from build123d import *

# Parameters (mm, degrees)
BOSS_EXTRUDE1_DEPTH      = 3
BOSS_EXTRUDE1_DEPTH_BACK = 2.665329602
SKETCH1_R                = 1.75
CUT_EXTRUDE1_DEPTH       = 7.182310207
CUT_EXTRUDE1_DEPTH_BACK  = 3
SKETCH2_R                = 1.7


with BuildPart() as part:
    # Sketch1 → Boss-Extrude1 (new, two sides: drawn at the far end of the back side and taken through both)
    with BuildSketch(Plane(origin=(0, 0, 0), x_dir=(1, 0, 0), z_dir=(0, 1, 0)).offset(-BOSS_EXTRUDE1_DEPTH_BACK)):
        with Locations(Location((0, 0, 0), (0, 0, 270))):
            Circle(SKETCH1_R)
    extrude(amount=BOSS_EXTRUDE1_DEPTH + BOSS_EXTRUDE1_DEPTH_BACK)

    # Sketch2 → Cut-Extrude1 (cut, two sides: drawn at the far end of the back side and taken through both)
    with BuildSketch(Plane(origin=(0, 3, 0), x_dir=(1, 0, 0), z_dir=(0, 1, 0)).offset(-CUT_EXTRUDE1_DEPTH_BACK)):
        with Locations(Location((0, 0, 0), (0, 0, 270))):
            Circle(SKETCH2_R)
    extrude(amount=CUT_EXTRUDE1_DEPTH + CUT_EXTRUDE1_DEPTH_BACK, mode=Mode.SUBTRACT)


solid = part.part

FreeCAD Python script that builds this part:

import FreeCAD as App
import Part
import Sketcher
from FreeCAD import Vector
Q = App.Units.Quantity

doc = App.newDocument("Part")
body = doc.addObject("PartDesign::Body", "Body")

# Sketch on XZ plane
sketch1 = doc.addObject("Sketcher::SketchObject", "Sketch")
body.addObject(sketch1)
sketch1.AttachmentSupport = (doc.XZ_Plane, [""])
sketch1.MapMode = "FlatFace"
sketch1.addGeometry(Part.Circle(Vector(0, 0, 0), Vector(0, 0, 1), 1.8), False)
sketch1.addConstraint(Sketcher.Constraint("Coincident", 0, 3, -1, 1))
sketch1.addConstraint(Sketcher.Constraint("Diameter", 0, Q("3.5 mm")))
pad1 = doc.addObject("PartDesign::Pad", "Pad")
body.addObject(pad1)
pad1.Profile = sketch1
pad1.Type = "TwoLengths"
pad1.Length = 3
pad1.Length2 = 2.66533
pad1.Reversed = True

# Sketch on XZ plane
sketch2 = doc.addObject("Sketcher::SketchObject", "Sketch001")
body.addObject(sketch2)
sketch2.AttachmentSupport = (doc.XZ_Plane, [""])
sketch2.MapMode = "FlatFace"
sketch2.AttachmentOffset = App.Placement(Vector(0, 0, -3), App.Rotation())
sketch2.addGeometry(Part.Circle(Vector(0, 0, 0), Vector(0, 0, 1), 1.7), False)
sketch2.addConstraint(Sketcher.Constraint("Coincident", 0, 3, -1, 1))
sketch2.addConstraint(Sketcher.Constraint("Diameter", 0, Q("3.4 mm")))
pocket1 = doc.addObject("PartDesign::Pocket", "Pocket")
body.addObject(pocket1)
pocket1.Profile = sketch2
pocket1.Type = "TwoLengths"
pocket1.Length = 7.18231
pocket1.Length2 = 3

doc.recompute()
